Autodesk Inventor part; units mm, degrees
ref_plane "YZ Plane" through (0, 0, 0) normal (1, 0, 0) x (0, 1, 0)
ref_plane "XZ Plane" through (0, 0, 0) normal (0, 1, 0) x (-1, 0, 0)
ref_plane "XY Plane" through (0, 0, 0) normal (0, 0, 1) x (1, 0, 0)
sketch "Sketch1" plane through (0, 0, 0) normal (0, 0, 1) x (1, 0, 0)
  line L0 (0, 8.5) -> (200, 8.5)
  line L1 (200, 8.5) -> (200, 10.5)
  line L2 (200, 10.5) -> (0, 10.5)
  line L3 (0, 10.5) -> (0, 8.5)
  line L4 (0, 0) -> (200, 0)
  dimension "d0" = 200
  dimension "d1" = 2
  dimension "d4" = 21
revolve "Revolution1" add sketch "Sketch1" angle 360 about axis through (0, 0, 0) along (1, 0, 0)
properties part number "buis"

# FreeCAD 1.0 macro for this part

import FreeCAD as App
import Part
import Sketcher

doc = App.newDocument("Part")
body = doc.addObject("PartDesign::Body", "Body")

# Sketch on XY plane
sketch1 = body.newObject("Sketcher::SketchObject", "Sketch")
sketch1.AttachmentSupport = (doc.getObject("XY_Plane"), [""])
sketch1.MapMode = "FlatFace"
sketch1.addGeometry([
    Part.LineSegment(App.Vector(0, 10.5, 0), App.Vector(0, 8.5, 0)),
    Part.LineSegment(App.Vector(0, 8.5, 0), App.Vector(200, 8.5, 0)),
    Part.LineSegment(App.Vector(200, 8.5, 0), App.Vector(200, 10.5, 0)),
    Part.LineSegment(App.Vector(200, 10.5, 0), App.Vector(0, 10.5, 0)),
], False)
sketch1.addConstraint([
    Sketcher.Constraint("Coincident", 0, 2, 1, 1),
    Sketcher.Constraint("Coincident", 1, 2, 2, 1),
    Sketcher.Constraint("Coincident", 2, 2, 3, 1),
    Sketcher.Constraint("Coincident", 3, 2, 0, 1),
    Sketcher.Constraint("Vertical", 0),
    Sketcher.Constraint("Horizontal", 1),
    Sketcher.Constraint("Vertical", 2),
    Sketcher.Constraint("Horizontal", 3),
    Sketcher.Constraint("PointOnObject", 0, 2, -2),
    Sketcher.Constraint("DistanceX", 1, 1, 1, 2, 200.0),
    Sketcher.Constraint("DistanceY", 0, 2, 0, 1, 2.0),
    Sketcher.Constraint("DistanceY", -1, 1, 0, 2, 8.5),
])
revolution = body.newObject("PartDesign::Revolution", "Revolution")
revolution.Profile = sketch1
revolution.ReferenceAxis = (sketch1, ["H_Axis"])
revolution.Angle = 360

doc.recompute()
